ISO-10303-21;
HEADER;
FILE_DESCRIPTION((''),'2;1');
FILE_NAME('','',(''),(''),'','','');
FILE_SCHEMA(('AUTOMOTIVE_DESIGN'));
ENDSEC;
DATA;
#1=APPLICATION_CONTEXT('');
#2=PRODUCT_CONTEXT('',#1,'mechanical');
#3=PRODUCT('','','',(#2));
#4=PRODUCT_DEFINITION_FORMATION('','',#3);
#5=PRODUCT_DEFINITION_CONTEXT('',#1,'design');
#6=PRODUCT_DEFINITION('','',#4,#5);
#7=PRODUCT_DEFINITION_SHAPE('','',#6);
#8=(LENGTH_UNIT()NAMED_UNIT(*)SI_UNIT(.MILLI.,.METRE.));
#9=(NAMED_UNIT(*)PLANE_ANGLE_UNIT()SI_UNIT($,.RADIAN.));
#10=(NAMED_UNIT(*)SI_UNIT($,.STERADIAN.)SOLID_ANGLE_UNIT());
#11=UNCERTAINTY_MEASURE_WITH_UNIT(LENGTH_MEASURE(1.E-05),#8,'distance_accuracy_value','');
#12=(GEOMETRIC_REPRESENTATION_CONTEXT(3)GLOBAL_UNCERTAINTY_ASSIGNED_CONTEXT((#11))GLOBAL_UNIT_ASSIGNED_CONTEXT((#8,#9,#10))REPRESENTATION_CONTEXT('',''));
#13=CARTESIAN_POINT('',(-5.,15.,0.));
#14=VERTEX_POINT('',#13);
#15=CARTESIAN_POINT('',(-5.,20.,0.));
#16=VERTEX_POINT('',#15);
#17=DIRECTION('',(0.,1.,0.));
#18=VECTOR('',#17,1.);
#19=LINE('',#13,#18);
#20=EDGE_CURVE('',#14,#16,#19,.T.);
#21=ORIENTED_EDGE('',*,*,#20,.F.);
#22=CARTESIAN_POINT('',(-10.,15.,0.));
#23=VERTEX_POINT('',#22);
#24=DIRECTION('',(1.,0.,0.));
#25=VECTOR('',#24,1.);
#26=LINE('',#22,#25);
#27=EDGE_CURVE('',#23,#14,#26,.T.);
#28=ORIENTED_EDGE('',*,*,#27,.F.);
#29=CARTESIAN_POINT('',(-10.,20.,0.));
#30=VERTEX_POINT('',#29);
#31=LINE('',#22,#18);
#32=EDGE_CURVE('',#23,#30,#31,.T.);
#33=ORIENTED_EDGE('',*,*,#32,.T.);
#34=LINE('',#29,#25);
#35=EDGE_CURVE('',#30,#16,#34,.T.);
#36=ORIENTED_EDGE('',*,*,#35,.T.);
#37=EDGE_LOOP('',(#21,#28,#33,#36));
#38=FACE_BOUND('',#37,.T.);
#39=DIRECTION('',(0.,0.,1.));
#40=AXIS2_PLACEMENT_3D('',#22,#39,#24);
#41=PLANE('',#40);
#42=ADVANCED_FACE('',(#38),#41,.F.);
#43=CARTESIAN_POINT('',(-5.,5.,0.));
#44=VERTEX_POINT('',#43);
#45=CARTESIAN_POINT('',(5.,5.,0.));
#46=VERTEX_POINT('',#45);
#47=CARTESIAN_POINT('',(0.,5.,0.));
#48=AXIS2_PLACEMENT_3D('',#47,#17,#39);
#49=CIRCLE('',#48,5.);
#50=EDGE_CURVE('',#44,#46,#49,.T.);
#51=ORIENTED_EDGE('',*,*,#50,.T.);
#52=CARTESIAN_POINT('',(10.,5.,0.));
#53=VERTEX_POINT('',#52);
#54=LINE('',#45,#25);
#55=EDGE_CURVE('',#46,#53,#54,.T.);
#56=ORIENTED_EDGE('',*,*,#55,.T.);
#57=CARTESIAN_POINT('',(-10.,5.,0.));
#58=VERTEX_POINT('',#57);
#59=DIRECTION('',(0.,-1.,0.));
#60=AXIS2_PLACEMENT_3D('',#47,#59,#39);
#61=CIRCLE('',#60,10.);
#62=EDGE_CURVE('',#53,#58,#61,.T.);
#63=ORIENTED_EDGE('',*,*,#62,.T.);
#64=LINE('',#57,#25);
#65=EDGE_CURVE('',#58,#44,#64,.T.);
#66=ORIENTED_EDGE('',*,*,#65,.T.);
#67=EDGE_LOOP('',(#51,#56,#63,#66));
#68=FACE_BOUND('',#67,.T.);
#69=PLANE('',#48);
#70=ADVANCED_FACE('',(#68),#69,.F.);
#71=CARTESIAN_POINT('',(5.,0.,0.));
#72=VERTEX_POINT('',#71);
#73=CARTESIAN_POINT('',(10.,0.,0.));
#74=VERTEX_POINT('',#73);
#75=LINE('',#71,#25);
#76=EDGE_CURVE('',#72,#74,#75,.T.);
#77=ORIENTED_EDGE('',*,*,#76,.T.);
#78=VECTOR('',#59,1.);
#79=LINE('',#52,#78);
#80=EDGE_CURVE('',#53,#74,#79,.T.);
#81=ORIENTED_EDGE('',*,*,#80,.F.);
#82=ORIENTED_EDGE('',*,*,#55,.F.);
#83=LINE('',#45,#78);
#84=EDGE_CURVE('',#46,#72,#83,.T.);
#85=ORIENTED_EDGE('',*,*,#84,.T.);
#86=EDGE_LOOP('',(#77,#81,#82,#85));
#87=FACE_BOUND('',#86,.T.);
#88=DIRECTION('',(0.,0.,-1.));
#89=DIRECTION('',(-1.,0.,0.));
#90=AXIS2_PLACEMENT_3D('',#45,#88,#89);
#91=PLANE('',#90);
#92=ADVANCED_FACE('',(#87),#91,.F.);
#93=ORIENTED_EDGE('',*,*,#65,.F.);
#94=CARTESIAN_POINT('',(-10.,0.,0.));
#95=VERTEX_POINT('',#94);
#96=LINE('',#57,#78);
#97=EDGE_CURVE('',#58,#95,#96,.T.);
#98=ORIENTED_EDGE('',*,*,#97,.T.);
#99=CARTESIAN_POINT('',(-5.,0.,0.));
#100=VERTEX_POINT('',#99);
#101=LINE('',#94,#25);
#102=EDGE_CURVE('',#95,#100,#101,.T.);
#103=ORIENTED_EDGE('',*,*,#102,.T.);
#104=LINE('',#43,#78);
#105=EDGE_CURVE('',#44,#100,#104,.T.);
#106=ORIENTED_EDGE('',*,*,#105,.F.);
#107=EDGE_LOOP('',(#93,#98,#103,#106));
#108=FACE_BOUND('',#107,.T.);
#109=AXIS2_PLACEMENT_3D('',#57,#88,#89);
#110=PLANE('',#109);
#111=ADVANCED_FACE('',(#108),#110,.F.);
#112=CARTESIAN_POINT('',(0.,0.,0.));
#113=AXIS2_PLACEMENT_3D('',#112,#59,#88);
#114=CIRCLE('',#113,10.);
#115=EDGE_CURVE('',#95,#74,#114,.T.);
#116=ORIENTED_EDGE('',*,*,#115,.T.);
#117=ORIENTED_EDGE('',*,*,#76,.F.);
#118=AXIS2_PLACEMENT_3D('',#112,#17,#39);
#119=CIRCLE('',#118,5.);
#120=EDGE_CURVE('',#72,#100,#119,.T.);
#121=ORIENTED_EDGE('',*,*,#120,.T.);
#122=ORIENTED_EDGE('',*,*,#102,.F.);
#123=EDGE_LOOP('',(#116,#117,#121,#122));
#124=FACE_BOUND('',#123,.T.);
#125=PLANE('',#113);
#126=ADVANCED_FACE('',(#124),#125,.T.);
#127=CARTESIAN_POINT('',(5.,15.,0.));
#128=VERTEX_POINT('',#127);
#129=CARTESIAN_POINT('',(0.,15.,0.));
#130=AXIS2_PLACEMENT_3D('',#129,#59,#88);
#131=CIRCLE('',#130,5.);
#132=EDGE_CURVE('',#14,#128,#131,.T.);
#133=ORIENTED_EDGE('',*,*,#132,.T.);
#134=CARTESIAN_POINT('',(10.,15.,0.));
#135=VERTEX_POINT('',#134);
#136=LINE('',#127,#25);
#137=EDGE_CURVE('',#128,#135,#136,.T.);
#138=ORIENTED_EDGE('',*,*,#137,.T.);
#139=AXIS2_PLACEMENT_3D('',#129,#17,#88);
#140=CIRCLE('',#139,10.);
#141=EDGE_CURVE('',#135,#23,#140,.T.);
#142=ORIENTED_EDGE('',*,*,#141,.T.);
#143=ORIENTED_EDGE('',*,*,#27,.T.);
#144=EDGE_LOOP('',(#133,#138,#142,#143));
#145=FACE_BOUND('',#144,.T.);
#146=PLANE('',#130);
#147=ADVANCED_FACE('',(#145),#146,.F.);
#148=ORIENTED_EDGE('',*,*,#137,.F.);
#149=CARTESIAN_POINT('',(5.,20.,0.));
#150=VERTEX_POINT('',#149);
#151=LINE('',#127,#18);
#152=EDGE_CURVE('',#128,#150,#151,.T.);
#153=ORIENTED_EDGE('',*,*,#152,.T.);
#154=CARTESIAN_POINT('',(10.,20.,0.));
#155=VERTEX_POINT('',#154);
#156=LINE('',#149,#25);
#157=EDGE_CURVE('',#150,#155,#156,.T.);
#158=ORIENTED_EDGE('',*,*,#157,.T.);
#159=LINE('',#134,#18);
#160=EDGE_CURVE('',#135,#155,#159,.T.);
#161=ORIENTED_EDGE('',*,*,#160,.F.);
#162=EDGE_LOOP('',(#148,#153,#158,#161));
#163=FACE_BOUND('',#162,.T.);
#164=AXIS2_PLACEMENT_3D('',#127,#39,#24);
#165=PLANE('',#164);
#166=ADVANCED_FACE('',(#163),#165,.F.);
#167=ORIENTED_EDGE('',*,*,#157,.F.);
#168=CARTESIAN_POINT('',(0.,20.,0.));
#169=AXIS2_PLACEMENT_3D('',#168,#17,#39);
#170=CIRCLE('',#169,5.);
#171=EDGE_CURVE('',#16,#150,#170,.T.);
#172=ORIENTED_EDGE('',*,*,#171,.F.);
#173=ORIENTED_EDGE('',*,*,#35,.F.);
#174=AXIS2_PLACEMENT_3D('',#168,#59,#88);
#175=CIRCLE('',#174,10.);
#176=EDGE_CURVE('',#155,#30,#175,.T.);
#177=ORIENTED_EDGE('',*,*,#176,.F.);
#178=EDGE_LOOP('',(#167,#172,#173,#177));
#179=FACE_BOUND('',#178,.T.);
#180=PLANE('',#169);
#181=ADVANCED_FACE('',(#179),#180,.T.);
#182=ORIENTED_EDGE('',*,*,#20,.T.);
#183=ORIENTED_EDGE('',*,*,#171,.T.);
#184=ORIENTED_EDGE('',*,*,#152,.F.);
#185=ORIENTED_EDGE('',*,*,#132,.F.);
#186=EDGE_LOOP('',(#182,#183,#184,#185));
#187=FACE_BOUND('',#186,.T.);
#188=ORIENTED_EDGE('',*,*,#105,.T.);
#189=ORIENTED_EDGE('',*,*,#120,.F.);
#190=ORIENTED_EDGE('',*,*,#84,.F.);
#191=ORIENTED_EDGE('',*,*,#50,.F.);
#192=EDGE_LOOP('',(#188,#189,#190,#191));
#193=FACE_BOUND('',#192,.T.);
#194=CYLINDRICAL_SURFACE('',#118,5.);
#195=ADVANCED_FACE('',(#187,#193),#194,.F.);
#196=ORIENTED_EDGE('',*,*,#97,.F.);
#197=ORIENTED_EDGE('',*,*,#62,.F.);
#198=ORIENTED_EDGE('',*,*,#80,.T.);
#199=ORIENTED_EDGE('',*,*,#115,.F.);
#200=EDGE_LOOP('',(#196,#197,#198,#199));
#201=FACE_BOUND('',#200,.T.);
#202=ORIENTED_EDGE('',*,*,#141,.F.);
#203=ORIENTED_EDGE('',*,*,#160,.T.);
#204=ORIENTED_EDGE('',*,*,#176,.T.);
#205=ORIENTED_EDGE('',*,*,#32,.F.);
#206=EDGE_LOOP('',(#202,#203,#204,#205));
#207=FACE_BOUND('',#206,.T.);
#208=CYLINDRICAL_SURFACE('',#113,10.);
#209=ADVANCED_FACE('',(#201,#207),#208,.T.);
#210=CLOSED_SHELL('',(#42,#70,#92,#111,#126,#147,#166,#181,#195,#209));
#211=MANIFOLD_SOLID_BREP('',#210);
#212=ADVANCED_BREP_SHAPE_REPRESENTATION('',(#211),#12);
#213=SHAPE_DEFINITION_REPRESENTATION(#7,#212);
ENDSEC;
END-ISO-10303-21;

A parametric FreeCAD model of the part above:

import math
import FreeCAD as App
import Part
import Sketcher

V = App.Vector
Q = App.Units.Quantity


def add_polygon(sketch, points):
    """Adds a closed chain of lines whose ends are joined by coincident constraints."""
    first, n = sketch.GeometryCount, len(points)
    for a, b in zip(points, points[1:] + points[:1]):
        sketch.addGeometry(Part.LineSegment(App.Vector(*a, 0), App.Vector(*b, 0)), False)
    for i in range(n):
        sketch.addConstraint(Sketcher.Constraint("Coincident", first + i, 2, first + (i + 1) % n, 1))

doc = App.newDocument("Part")
params = doc.addObject("Spreadsheet::Sheet", "Params")
for row, (alias, value) in enumerate([
    ("sketch1_width", "10 mm"),
    ("sketch1_height", "20 mm"),
    ("revolution_angle", "360 deg"),
    ("sketch2_diameter", "10 mm"),
    ("pocket1_length", "20 mm"),
    ("sketch3_radius", "5 mm"),
    ("sketch3_radius2", "10 mm"),
    ("pocket2_length", "5 mm"),
    ("sketch4_radius", "5 mm"),
    ("sketch4_radius2", "10 mm"),
    ("pocket3_length", "5 mm"),
], start=1):
    params.set(f"A{row}", alias)
    params.set(f"B{row}", "=" + value)
    params.setAlias(f"B{row}", alias)

body = doc.addObject("PartDesign::Body", "Body")

# Sketch on XY plane
sketch1 = body.newObject("Sketcher::SketchObject", "Sketch")
sketch1.AttachmentSupport = (doc.getObject("XY_Plane"), [""])
sketch1.MapMode = "FlatFace"
add_polygon(sketch1, [(0, 20), (0, 0), (10, 0), (10, 20)])  # lines 0-3
sketch1.addConstraint(Sketcher.Constraint("Vertical", 0))
sketch1.addConstraint(Sketcher.Constraint("Horizontal", 1))
sketch1.addConstraint(Sketcher.Constraint("Vertical", 2))
sketch1.addConstraint(Sketcher.Constraint("Horizontal", 3))
sketch1.addConstraint(Sketcher.Constraint("Coincident", 0, 2, -1, 1))
sketch1.addConstraint(Sketcher.Constraint("DistanceX", 1, 1, 1, 2, Q("10 mm")))
sketch1.addConstraint(Sketcher.Constraint("DistanceY", 0, 2, 0, 1, Q("20 mm")))
sketch1.setExpression("Constraints[9]", "Params.sketch1_width")
sketch1.setExpression("Constraints[10]", "Params.sketch1_height")
revolution = body.newObject("PartDesign::Revolution", "Revolution")
revolution.Profile = sketch1
revolution.ReferenceAxis = (sketch1, ["V_Axis"])
revolution.setExpression("Angle", "Params.revolution_angle")

# Sketch on XZ plane
sketch2 = body.newObject("Sketcher::SketchObject", "Sketch001")
sketch2.AttachmentSupport = (doc.getObject("XZ_Plane"), [""])
sketch2.MapMode = "FlatFace"
sketch2.AttachmentOffset = App.Placement(V(0, 0, -20), App.Rotation())
sketch2.addGeometry(Part.Circle(V(0, 0, 0), V(0, 0, 1), 5), False)
sketch2.addConstraint(Sketcher.Constraint("Coincident", 0, 3, -1, 1))
sketch2.addConstraint(Sketcher.Constraint("Diameter", 0, Q("10 mm")))
sketch2.setExpression("Constraints[1]", "Params.sketch2_diameter")
pocket1 = body.newObject("PartDesign::Pocket", "Pocket")
pocket1.Profile = sketch2
pocket1.setExpression("Length", "Params.pocket1_length")
pocket1.Reversed = True

# Sketch on XZ plane
sketch3 = body.newObject("Sketcher::SketchObject", "Sketch002")
sketch3.AttachmentSupport = (doc.getObject("XZ_Plane"), [""])
sketch3.MapMode = "FlatFace"
sketch3.AttachmentOffset = App.Placement(V(0, 0, -20), App.Rotation())
sketch3.addGeometry(Part.LineSegment(V(-10, 0, 0), V(-5, 0, 0)), False)
sketch3.addGeometry(Part.ArcOfCircle(Part.Circle(V(0, 0, 0), V(0, 0, 1), 5), math.radians(180), math.radians(360)), False)
sketch3.addGeometry(Part.LineSegment(V(5, 0, 0), V(10, 0, 0)), False)
sketch3.addGeometry(Part.ArcOfCircle(Part.Circle(V(0, 0, 0), V(0, 0, 1), 10), math.radians(180), math.radians(360)), False)
sketch3.addConstraint(Sketcher.Constraint("Coincident", 0, 2, 1, 1))
sketch3.addConstraint(Sketcher.Constraint("Coincident", 1, 2, 2, 1))
sketch3.addConstraint(Sketcher.Constraint("Coincident", 2, 2, 3, 2))
sketch3.addConstraint(Sketcher.Constraint("Coincident", 3, 1, 0, 1))
sketch3.addConstraint(Sketcher.Constraint("Horizontal", 0))
sketch3.addConstraint(Sketcher.Constraint("Horizontal", 2))
sketch3.addConstraint(Sketcher.Constraint("Coincident", 1, 3, -1, 1))
sketch3.addConstraint(Sketcher.Constraint("Coincident", 3, 3, -1, 1))
sketch3.addConstraint(Sketcher.Constraint("PointOnObject", 0, 2, -1))
sketch3.addConstraint(Sketcher.Constraint("PointOnObject", 1, 2, -1))
sketch3.addConstraint(Sketcher.Constraint("Radius", 1, Q("5 mm")))
sketch3.addConstraint(Sketcher.Constraint("Radius", 3, Q("10 mm")))
sketch3.setExpression("Constraints[10]", "Params.sketch3_radius")
sketch3.setExpression("Constraints[11]", "Params.sketch3_radius2")
pocket2 = body.newObject("PartDesign::Pocket", "Pocket001")
pocket2.Profile = sketch3
pocket2.setExpression("Length", "Params.pocket2_length")
pocket2.Reversed = True

# Sketch on XZ plane
sketch4 = body.newObject("Sketcher::SketchObject", "Sketch003")
sketch4.AttachmentSupport = (doc.getObject("XZ_Plane"), [""])
sketch4.MapMode = "FlatFace"
sketch4.addGeometry(Part.LineSegment(V(-10, 0, 0), V(-5, 0, 0)), False)
sketch4.addGeometry(Part.ArcOfCircle(Part.Circle(V(0, 0, 0), V(0, 0, 1), 5), math.radians(0), math.radians(180)), False)
sketch4.addGeometry(Part.LineSegment(V(5, 0, 0), V(10, 0, 0)), False)
sketch4.addGeometry(Part.ArcOfCircle(Part.Circle(V(0, 0, 0), V(0, 0, 1), 10), math.radians(0), math.radians(180)), False)
sketch4.addConstraint(Sketcher.Constraint("Coincident", 0, 2, 1, 2))
sketch4.addConstraint(Sketcher.Constraint("Coincident", 1, 1, 2, 1))
sketch4.addConstraint(Sketcher.Constraint("Coincident", 2, 2, 3, 1))
sketch4.addConstraint(Sketcher.Constraint("Coincident", 3, 2, 0, 1))
sketch4.addConstraint(Sketcher.Constraint("Horizontal", 0))
sketch4.addConstraint(Sketcher.Constraint("Horizontal", 2))
sketch4.addConstraint(Sketcher.Constraint("Coincident", 1, 3, -1, 1))
sketch4.addConstraint(Sketcher.Constraint("Coincident", 3, 3, -1, 1))
sketch4.addConstraint(Sketcher.Constraint("PointOnObject", 0, 2, -1))
sketch4.addConstraint(Sketcher.Constraint("PointOnObject", 1, 1, -1))
sketch4.addConstraint(Sketcher.Constraint("Radius", 1, Q("5 mm")))
sketch4.addConstraint(Sketcher.Constraint("Radius", 3, Q("10 mm")))
sketch4.setExpression("Constraints[10]", "Params.sketch4_radius")
sketch4.setExpression("Constraints[11]", "Params.sketch4_radius2")
pocket3 = body.newObject("PartDesign::Pocket", "Pocket002")
pocket3.Profile = sketch4
pocket3.setExpression("Length", "Params.pocket3_length")

doc.recompute()
